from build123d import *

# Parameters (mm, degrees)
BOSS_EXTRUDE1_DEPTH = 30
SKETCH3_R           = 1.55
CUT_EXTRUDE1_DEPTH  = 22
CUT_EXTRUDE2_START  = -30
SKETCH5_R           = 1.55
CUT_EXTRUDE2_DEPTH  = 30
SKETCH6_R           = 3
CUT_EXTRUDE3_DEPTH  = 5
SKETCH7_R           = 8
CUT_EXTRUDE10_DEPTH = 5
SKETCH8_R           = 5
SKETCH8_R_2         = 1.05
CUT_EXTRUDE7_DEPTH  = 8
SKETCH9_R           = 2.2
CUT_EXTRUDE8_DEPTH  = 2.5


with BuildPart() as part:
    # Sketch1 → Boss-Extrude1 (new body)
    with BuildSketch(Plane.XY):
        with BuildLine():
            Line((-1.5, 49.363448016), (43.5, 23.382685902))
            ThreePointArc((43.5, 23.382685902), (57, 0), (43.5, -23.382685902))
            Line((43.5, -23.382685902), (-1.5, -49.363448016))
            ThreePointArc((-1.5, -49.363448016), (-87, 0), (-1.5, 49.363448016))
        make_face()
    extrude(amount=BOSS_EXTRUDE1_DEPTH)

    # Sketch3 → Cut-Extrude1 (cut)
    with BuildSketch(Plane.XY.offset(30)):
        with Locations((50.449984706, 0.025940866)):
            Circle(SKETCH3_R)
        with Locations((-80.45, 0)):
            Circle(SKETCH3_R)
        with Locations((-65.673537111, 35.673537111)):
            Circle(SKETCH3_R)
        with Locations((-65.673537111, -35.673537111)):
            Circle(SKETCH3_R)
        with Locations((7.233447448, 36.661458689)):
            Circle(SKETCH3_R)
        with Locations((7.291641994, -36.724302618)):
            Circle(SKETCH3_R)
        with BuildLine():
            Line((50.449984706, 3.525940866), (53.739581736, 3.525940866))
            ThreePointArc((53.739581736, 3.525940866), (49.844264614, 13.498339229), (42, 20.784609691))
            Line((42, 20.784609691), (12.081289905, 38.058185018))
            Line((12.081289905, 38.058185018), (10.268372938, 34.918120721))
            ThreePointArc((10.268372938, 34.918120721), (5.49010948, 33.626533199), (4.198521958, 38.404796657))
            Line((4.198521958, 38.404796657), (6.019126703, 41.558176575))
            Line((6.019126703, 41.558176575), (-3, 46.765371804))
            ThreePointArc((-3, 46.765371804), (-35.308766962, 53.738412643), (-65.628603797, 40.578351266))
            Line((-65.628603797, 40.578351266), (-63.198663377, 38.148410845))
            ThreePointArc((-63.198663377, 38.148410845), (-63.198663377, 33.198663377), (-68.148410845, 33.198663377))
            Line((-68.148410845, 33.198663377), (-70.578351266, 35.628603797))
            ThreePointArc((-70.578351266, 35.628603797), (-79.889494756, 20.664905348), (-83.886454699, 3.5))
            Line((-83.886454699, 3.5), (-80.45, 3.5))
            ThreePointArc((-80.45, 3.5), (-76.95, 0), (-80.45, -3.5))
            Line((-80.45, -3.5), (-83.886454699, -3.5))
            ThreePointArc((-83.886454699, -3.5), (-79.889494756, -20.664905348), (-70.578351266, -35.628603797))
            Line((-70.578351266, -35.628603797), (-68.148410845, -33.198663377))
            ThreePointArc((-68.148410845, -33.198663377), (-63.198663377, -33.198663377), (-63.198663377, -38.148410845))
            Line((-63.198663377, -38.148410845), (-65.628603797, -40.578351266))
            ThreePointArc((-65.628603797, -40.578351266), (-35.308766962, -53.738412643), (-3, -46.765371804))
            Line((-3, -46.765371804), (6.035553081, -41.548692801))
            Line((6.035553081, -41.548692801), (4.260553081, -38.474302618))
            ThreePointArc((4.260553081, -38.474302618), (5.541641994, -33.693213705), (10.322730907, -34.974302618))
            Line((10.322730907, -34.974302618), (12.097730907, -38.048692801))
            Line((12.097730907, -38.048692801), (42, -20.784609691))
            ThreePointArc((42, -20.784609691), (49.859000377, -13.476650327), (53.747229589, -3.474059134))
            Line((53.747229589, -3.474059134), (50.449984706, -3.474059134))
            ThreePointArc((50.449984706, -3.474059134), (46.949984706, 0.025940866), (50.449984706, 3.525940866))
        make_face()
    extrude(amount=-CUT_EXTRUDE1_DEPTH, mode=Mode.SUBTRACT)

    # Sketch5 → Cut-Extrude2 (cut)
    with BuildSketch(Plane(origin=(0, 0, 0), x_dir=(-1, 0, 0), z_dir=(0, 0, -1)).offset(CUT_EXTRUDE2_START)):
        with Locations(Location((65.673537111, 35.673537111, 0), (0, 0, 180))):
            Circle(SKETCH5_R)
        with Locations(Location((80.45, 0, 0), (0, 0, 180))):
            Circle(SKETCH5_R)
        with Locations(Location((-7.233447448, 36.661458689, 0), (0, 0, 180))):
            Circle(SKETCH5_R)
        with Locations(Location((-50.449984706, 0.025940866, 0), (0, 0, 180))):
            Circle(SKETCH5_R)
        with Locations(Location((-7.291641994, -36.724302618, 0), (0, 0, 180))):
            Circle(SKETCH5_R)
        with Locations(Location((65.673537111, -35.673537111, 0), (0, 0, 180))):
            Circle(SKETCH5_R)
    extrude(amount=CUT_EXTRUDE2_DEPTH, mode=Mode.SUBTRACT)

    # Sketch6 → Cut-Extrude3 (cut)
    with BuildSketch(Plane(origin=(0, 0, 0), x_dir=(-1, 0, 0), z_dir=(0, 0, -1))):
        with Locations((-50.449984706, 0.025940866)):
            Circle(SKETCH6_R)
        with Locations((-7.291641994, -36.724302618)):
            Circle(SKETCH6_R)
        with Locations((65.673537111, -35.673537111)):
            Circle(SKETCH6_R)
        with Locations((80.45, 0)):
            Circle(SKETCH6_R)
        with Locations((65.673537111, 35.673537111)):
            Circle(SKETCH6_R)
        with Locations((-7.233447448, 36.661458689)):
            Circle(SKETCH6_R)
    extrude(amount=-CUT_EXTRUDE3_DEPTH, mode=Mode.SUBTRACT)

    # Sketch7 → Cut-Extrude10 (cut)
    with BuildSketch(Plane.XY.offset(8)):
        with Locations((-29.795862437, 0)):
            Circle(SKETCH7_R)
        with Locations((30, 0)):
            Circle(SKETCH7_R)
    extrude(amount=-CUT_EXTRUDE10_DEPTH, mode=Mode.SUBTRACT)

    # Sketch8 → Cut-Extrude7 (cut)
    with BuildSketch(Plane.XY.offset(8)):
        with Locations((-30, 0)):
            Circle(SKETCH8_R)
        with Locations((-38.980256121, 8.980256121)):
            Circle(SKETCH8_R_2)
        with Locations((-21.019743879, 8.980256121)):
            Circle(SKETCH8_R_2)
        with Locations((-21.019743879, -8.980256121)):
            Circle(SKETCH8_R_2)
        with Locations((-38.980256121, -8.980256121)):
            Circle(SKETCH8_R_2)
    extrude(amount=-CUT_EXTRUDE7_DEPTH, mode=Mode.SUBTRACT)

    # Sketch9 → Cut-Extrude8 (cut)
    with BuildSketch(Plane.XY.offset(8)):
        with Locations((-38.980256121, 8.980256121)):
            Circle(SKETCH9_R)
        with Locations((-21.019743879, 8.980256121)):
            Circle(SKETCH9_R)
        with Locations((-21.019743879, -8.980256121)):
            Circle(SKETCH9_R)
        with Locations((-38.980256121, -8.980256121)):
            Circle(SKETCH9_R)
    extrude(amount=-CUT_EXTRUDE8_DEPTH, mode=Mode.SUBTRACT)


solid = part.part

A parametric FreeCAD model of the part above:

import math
import FreeCAD as App
import Part
import Sketcher

V = App.Vector
Q = App.Units.Quantity

doc = App.newDocument("Part")
params = doc.addObject("Spreadsheet::Sheet", "Params")
for row, (alias, value) in enumerate([
    ("sketch1_radius", "57 mm"),
    ("sketch1_radius2", "27 mm"),
    ("pad1_length", "30 mm"),
    ("sketch2_radius", "24 mm"),
    ("sketch2_radius2", "54 mm"),
    ("sketch2_diameter", "3.1 mm"),
    ("sketch2_radius3", "3.5 mm"),
    ("sketch2_length", "3.55 mm"),
    ("pocket1_length", "22 mm"),
    ("sketch3_diameter", "3.1 mm"),
    ("pocket2_length", "30 mm"),
    ("sketch4_diameter", "6 mm"),
    ("pocket3_length", "5 mm"),
    ("sketch5_diameter", "16 mm"),
    ("pocket4_length", "5 mm"),
    ("sketch6_diameter", "10 mm"),
    ("sketch6_diameter2", "2.1 mm"),
    ("pocket5_length", "8 mm"),
    ("sketch7_diameter", "4.4 mm"),
    ("pocket6_length", "2.5 mm"),
], start=1):
    params.set(f"A{row}", alias)
    params.set(f"B{row}", "=" + value)
    params.setAlias(f"B{row}", alias)

body = doc.addObject("PartDesign::Body", "Body")

sketch1 = doc.addObject("Sketcher::SketchObject", "Sketch")
body.addObject(sketch1)
sketch1.AttachmentSupport = (doc.XY_Plane, [""])
sketch1.MapMode = "FlatFace"
sketch1.addGeometry(Part.LineSegment(V(43.5, 23.382686, 0), V(-1.5, 49.363448, 0)), False)
sketch1.addGeometry(Part.ArcOfCircle(Part.Circle(V(-30, 0, 0), V(0, 0, 1), 57), math.radians(60), math.radians(300)), False)
sketch1.addGeometry(Part.LineSegment(V(-1.5, -49.363448, 0), V(43.5, -23.382686, 0)), False)
sketch1.addGeometry(Part.ArcOfCircle(Part.Circle(V(30, 0, 0), V(0, 0, 1), 27), math.radians(-60), math.radians(60)), False)
sketch1.addConstraint(Sketcher.Constraint("Tangent", 0, 2, 1, 1))
sketch1.addConstraint(Sketcher.Constraint("Tangent", 1, 2, 2, 1))
sketch1.addConstraint(Sketcher.Constraint("Tangent", 2, 2, 3, 1))
sketch1.addConstraint(Sketcher.Constraint("Tangent", 3, 2, 0, 1))
sketch1.addConstraint(Sketcher.Constraint("Symmetric", 1, 3, 3, 3, -1, 1))
sketch1.addConstraint(Sketcher.Constraint("PointOnObject", 1, 3, -1))
sketch1.addConstraint(Sketcher.Constraint("Radius", 1, Q("57 mm")))
sketch1.addConstraint(Sketcher.Constraint("Radius", 3, Q("27 mm")))
sketch1.addConstraint(Sketcher.Constraint("Angle", 0, Q("150 deg")))
sketch1.setExpression("Constraints[6]", "Params.sketch1_radius")
sketch1.setExpression("Constraints[7]", "Params.sketch1_radius2")
pad1 = doc.addObject("PartDesign::Pad", "Pad")
body.addObject(pad1)
pad1.Profile = sketch1
pad1.setExpression("Length", "Params.pad1_length")

sketch2 = doc.addObject("Sketcher::SketchObject", "Sketch001")
body.addObject(sketch2)
sketch2.AttachmentSupport = (doc.XY_Plane, [""])
sketch2.MapMode = "FlatFace"
sketch2.AttachmentOffset = App.Placement(V(0, 0, 30), App.Rotation())
sketch2.addGeometry(Part.Circle(V(50.449985, 0.025941, 0), V(0, 0, 1), 1.55), False)
sketch2.addGeometry(Part.Circle(V(-80.45, 0, 0), V(0, 0, 1), 1.55), False)
sketch2.addGeometry(Part.Circle(V(-65.673537, 35.673537, 0), V(0, 0, 1), 1.55), False)
sketch2.addGeometry(Part.Circle(V(-65.673537, -35.673537, 0), V(0, 0, 1), 1.55), False)
sketch2.addGeometry(Part.Circle(V(7.233447, 36.661459, 0), V(0, 0, 1), 1.55), False)
sketch2.addGeometry(Part.Circle(V(7.291642, -36.724303, 0), V(0, 0, 1), 1.55), False)
sketch2.addGeometry(Part.LineSegment(V(50.449985, 3.525941, 0), V(53.739582, 3.525941, 0)), False)
sketch2.addGeometry(Part.ArcOfCircle(Part.Circle(V(30, 0, 0), V(0, 0, 1), 24), math.radians(8.448142), math.radians(60)), False)
sketch2.addGeometry(Part.LineSegment(V(42, 20.78461, 0), V(12.08129, 38.058185, 0)), False)
sketch2.addGeometry(Part.LineSegment(V(12.08129, 38.058185, 0), V(10.268373, 34.918121, 0)), False)
sketch2.addGeometry(Part.ArcOfCircle(Part.Circle(V(7.233447, 36.661459, 0), V(0, 0, 1), 3.5), math.radians(150.125851), math.radians(330.125851)), False)
sketch2.addGeometry(Part.LineSegment(V(4.198522, 38.404797, 0), V(6.019127, 41.558177, 0)), False)
sketch2.addGeometry(Part.LineSegment(V(6.019127, 41.558177, 0), V(-3, 46.765372, 0)), False)
sketch2.addGeometry(Part.ArcOfCircle(Part.Circle(V(-30, 0, 0), V(0, 0, 1), 54), math.radians(60), math.radians(131.28378)), False)
sketch2.addGeometry(Part.LineSegment(V(-65.628604, 40.578351, 0), V(-63.198663, 38.148411, 0)), False)
sketch2.addGeometry(Part.ArcOfCircle(Part.Circle(V(-65.673537, 35.673537, 0), V(0, 0, 1), 3.5), math.radians(-135), math.radians(45)), False)
sketch2.addGeometry(Part.LineSegment(V(-68.148411, 33.198663, 0), V(-70.578351, 35.628604, 0)), False)
sketch2.addGeometry(Part.ArcOfCircle(Part.Circle(V(-30, 0, 0), V(0, 0, 1), 54), math.radians(138.71622), math.radians(176.28378)), False)
sketch2.addGeometry(Part.LineSegment(V(-83.886455, 3.5, 0), V(-80.45, 3.5, 0)), False)
sketch2.addGeometry(Part.ArcOfCircle(Part.Circle(V(-80.45, 0, 0), V(0, 0, 1), 3.5), math.radians(-90), math.radians(90)), False)
sketch2.addGeometry(Part.LineSegment(V(-80.45, -3.5, 0), V(-83.886455, -3.5, 0)), False)
sketch2.addGeometry(Part.ArcOfCircle(Part.Circle(V(-30, 0, 0), V(0, 0, 1), 54), math.radians(-176.28378), math.radians(-138.71622)), False)
sketch2.addGeometry(Part.LineSegment(V(-70.578351, -35.628604, 0), V(-68.148411, -33.198663, 0)), False)
sketch2.addGeometry(Part.ArcOfCircle(Part.Circle(V(-65.673537, -35.673537, 0), V(0, 0, 1), 3.5), math.radians(-45), math.radians(135)), False)
sketch2.addGeometry(Part.LineSegment(V(-63.198663, -38.148411, 0), V(-65.628604, -40.578351, 0)), False)
sketch2.addGeometry(Part.ArcOfCircle(Part.Circle(V(-30, 0, 0), V(0, 0, 1), 54), math.radians(-131.28378), math.radians(-60)), False)
sketch2.addGeometry(Part.LineSegment(V(-3, -46.765372, 0), V(6.035553, -41.548693, 0)), False)
sketch2.addGeometry(Part.LineSegment(V(6.035553, -41.548693, 0), V(4.260553, -38.474303, 0)), False)
sketch2.addGeometry(Part.ArcOfCircle(Part.Circle(V(7.291642, -36.724303, 0), V(0, 0, 1), 3.5), math.radians(30), math.radians(210)), False)
sketch2.addGeometry(Part.LineSegment(V(10.322731, -34.974303, 0), V(12.097731, -38.048693, 0)), False)
sketch2.addGeometry(Part.LineSegment(V(12.097731, -38.048693, 0), V(42, -20.78461, 0)), False)
sketch2.addGeometry(Part.ArcOfCircle(Part.Circle(V(30, 0, 0), V(0, 0, 1), 24), math.radians(-60), math.radians(-8.322945)), False)
sketch2.addGeometry(Part.LineSegment(V(53.74723, -3.474059, 0), V(50.449985, -3.474059, 0)), False)
sketch2.addGeometry(Part.ArcOfCircle(Part.Circle(V(50.449985, 0.025941, 0), V(0, 0, 1), 3.5), math.radians(90), math.radians(270)), False)
sketch2.addConstraint(Sketcher.Constraint("Coincident", 6, 2, 7, 1))
sketch2.addConstraint(Sketcher.Constraint("Tangent", 7, 2, 8, 1))
sketch2.addConstraint(Sketcher.Constraint("Coincident", 8, 2, 9, 1))
sketch2.addConstraint(Sketcher.Constraint("Coincident", 9, 2, 10, 2))
sketch2.addConstraint(Sketcher.Constraint("Coincident", 10, 1, 11, 1))
sketch2.addConstraint(Sketcher.Constraint("Coincident", 11, 2, 12, 1))
sketch2.addConstraint(Sketcher.Constraint("Tangent", 12, 2, 13, 1))
sketch2.addConstraint(Sketcher.Constraint("Coincident", 13, 2, 14, 1))
sketch2.addConstraint(Sketcher.Constraint("Tangent", 14, 2, 15, 2))
sketch2.addConstraint(Sketcher.Constraint("Tangent", 15, 1, 16, 1))
sketch2.addConstraint(Sketcher.Constraint("Coincident", 16, 2, 17, 1))
sketch2.addConstraint(Sketcher.Constraint("Coincident", 17, 2, 18, 1))
sketch2.addConstraint(Sketcher.Constraint("Tangent", 18, 2, 19, 2))
sketch2.addConstraint(Sketcher.Constraint("Tangent", 19, 1, 20, 1))
sketch2.addConstraint(Sketcher.Constraint("Coincident", 20, 2, 21, 1))
sketch2.addConstraint(Sketcher.Constraint("Coincident", 21, 2, 22, 1))
sketch2.addConstraint(Sketcher.Constraint("Tangent", 22, 2, 23, 2))
sketch2.addConstraint(Sketcher.Constraint("Tangent", 23, 1, 24, 1))
sketch2.addConstraint(Sketcher.Constraint("Coincident", 24, 2, 25, 1))
sketch2.addConstraint(Sketcher.Constraint("Tangent", 25, 2, 26, 1))
sketch2.addConstraint(Sketcher.Constraint("Coincident", 26, 2, 27, 1))
sketch2.addConstraint(Sketcher.Constraint("Tangent", 27, 2, 28, 2))
sketch2.addConstraint(Sketcher.Constraint("Tangent", 28, 1, 29, 1))
sketch2.addConstraint(Sketcher.Constraint("Coincident", 29, 2, 30, 1))
sketch2.addConstraint(Sketcher.Constraint("Tangent", 30, 2, 31, 1))
sketch2.addConstraint(Sketcher.Constraint("Coincident", 31, 2, 32, 1))
sketch2.addConstraint(Sketcher.Constraint("Tangent", 32, 2, 33, 2))
sketch2.addConstraint(Sketcher.Constraint("Tangent", 33, 1, 6, 1))
sketch2.addConstraint(Sketcher.Constraint("Horizontal", 6))
sketch2.addConstraint(Sketcher.Constraint("Horizontal", 18))
sketch2.addConstraint(Sketcher.Constraint("Horizontal", 20))
sketch2.addConstraint(Sketcher.Constraint("Horizontal", 32))
sketch2.addConstraint(Sketcher.Constraint("Coincident", 10, 3, 4, 3))
sketch2.addConstraint(Sketcher.Constraint("Coincident", 15, 3, 2, 3))
sketch2.addConstraint(Sketcher.Constraint("Coincident", 17, 3, 13, 3))
sketch2.addConstraint(Sketcher.Constraint("Coincident", 19, 3, 1, 3))
sketch2.addConstraint(Sketcher.Constraint("Coincident", 21, 3, 13, 3))
sketch2.addConstraint(Sketcher.Constraint("Coincident", 23, 3, 3, 3))
sketch2.addConstraint(Sketcher.Constraint("Coincident", 25, 3, 13, 3))
sketch2.addConstraint(Sketcher.Constraint("Coincident", 28, 3, 5, 3))
sketch2.addConstraint(Sketcher.Constraint("Coincident", 31, 3, 7, 3))
sketch2.addConstraint(Sketcher.Constraint("Coincident", 33, 3, 0, 3))
sketch2.addConstraint(Sketcher.Constraint("Equal", 0, 1))
sketch2.addConstraint(Sketcher.Constraint("Equal", 1, 2))
sketch2.addConstraint(Sketcher.Constraint("Equal", 2, 3))
sketch2.addConstraint(Sketcher.Constraint("Equal", 3, 4))
sketch2.addConstraint(Sketcher.Constraint("Equal", 4, 5))
sketch2.addConstraint(Sketcher.Constraint("Equal", 10, 15))
sketch2.addConstraint(Sketcher.Constraint("Equal", 13, 17))
sketch2.addConstraint(Sketcher.Constraint("Equal", 15, 19))
sketch2.addConstraint(Sketcher.Constraint("Equal", 17, 21))
sketch2.addConstraint(Sketcher.Constraint("Equal", 19, 23))
sketch2.addConstraint(Sketcher.Constraint("Equal", 21, 25))
sketch2.addConstraint(Sketcher.Constraint("Equal", 23, 28))
sketch2.addConstraint(Sketcher.Constraint("Equal", 7, 31))
sketch2.addConstraint(Sketcher.Constraint("Equal", 28, 33))
sketch2.addConstraint(Sketcher.Constraint("Symmetric", 7, 3, 13, 3, -1, 1))
sketch2.addConstraint(Sketcher.Constraint("Symmetric", 2, 3, 3, 3, -1))
sketch2.addConstraint(Sketcher.Constraint("Symmetric", 17, 2, 20, 2, -1))
sketch2.addConstraint(Sketcher.Constraint("Perpendicular", 8, 9))
sketch2.addConstraint(Sketcher.Constraint("Parallel", 9, 11))
sketch2.addConstraint(Sketcher.Constraint("Perpendicular", 11, 12))
sketch2.addConstraint(Sketcher.Constraint("Parallel", 14, 16))
sketch2.addConstraint(Sketcher.Constraint("Perpendicular", 16, 22))
sketch2.addConstraint(Sketcher.Constraint("Parallel", 22, 24))
sketch2.addConstraint(Sketcher.Constraint("Perpendicular", 26, 27))
sketch2.addConstraint(Sketcher.Constraint("Parallel", 27, 29))
sketch2.addConstraint(Sketcher.Constraint("Perpendicular", 29, 30))
sketch2.addConstraint(Sketcher.Constraint("Vertical", 16, 2, 21, 2))
sketch2.addConstraint(Sketcher.Constraint("Vertical", 12, 2, 25, 2))
sketch2.addConstraint(Sketcher.Constraint("Equal", 14, 16))
sketch2.addConstraint(Sketcher.Constraint("Equal", 27, 29))
sketch2.addConstraint(Sketcher.Constraint("Radius", 7, Q("24 mm")))
sketch2.addConstraint(Sketcher.Constraint("Radius", 13, Q("54 mm")))
sketch2.addConstraint(Sketcher.Constraint("Diameter", 0, Q("3.1 mm")))
sketch2.addConstraint(Sketcher.Constraint("Radius", 10, Q("3.5 mm")))
sketch2.addConstraint(Sketcher.Constraint("Angle", 8, Q("150 deg")))
sketch2.addConstraint(Sketcher.Constraint("Distance", 27, Q("3.55 mm")))
sketch2.addConstraint(Sketcher.Constraint("DistanceX", 1, 3, -1, 1, Q("80.45 mm")))
sketch2.addConstraint(Sketcher.Constraint("Distance", 8, Q("34.547151 mm")))
sketch2.addConstraint(Sketcher.Constraint("Distance", 11, Q("3.641209 mm")))
sketch2.addConstraint(Sketcher.Constraint("Distance", 26, Q("10.433358 mm")))
sketch2.addConstraint(Sketcher.Constraint("DistanceX", 6, 1, 6, 2, Q("3.289597 mm")))
sketch2.addConstraint(Sketcher.Constraint("DistanceX", 32, 2, 32, 1, Q("3.297245 mm")))
sketch2.addConstraint(Sketcher.Constraint("DistanceY", -1, 1, 4, 3, Q("36.661459 mm")))
sketch2.addConstraint(Sketcher.Constraint("DistanceY", -1, 1, 9, 2, Q("34.918121 mm")))
sketch2.addConstraint(Sketcher.Constraint("DistanceY", -1, 1, 14, 2, Q("38.148411 mm")))
sketch2.setExpression("Constraints[72]", "Params.sketch2_radius")
sketch2.setExpression("Constraints[73]", "Params.sketch2_radius2")
sketch2.setExpression("Constraints[74]", "Params.sketch2_diameter")
sketch2.setExpression("Constraints[75]", "Params.sketch2_radius3")
sketch2.setExpression("Constraints[77]", "Params.sketch2_length")
pocket1 = doc.addObject("PartDesign::Pocket", "Pocket")
body.addObject(pocket1)
pocket1.Profile = sketch2
pocket1.setExpression("Length", "Params.pocket1_length")

sketch3 = doc.addObject("Sketcher::SketchObject", "Sketch002")
body.addObject(sketch3)
sketch3.AttachmentSupport = (doc.XY_Plane, [""])
sketch3.MapMode = "FlatFace"
sketch3.AttachmentOffset = App.Placement(V(0, 0, 30), App.Rotation())
sketch3.addGeometry(Part.Circle(V(-65.673537, 35.673537, 0), V(0, 0, 1), 1.55), False)
sketch3.addGeometry(Part.Circle(V(-80.45, 0, 0), V(0, 0, 1), 1.55), False)
sketch3.addGeometry(Part.Circle(V(7.233447, 36.661459, 0), V(0, 0, 1), 1.55), False)
sketch3.addGeometry(Part.Circle(V(50.449985, 0.025941, 0), V(0, 0, 1), 1.55), False)
sketch3.addGeometry(Part.Circle(V(7.291642, -36.724303, 0), V(0, 0, 1), 1.55), False)
sketch3.addGeometry(Part.Circle(V(-65.673537, -35.673537, 0), V(0, 0, 1), 1.55), False)
sketch3.addConstraint(Sketcher.Constraint("Equal", 0, 1))
sketch3.addConstraint(Sketcher.Constraint("Equal", 1, 2))
sketch3.addConstraint(Sketcher.Constraint("Equal", 2, 3))
sketch3.addConstraint(Sketcher.Constraint("Equal", 3, 4))
sketch3.addConstraint(Sketcher.Constraint("Equal", 4, 5))
sketch3.addConstraint(Sketcher.Constraint("Symmetric", 0, 3, 5, 3, -1))
sketch3.addConstraint(Sketcher.Constraint("PointOnObject", 1, 3, -1))
sketch3.addConstraint(Sketcher.Constraint("Diameter", 0, Q("3.1 mm")))
sketch3.addConstraint(Sketcher.Constraint("DistanceX", 1, 3, -1, 1, Q("80.45 mm")))
sketch3.addConstraint(Sketcher.Constraint("DistanceY", -1, 1, 2, 3, Q("36.661459 mm")))
sketch3.addConstraint(Sketcher.Constraint("DistanceY", -1, 1, 3, 3, Q("0.025941 mm")))
sketch3.addConstraint(Sketcher.Constraint("DistanceX", -1, 1, 4, 3, Q("7.291642 mm")))
sketch3.addConstraint(Sketcher.Constraint("DistanceY", 0, 3, 2, 3, Q("0.987922 mm")))
sketch3.addConstraint(Sketcher.Constraint("DistanceX", 0, 3, 3, 3, Q("116.123522 mm")))
sketch3.addConstraint(Sketcher.Constraint("DistanceY", 4, 3, 2, 3, Q("73.385761 mm")))
sketch3.addConstraint(Sketcher.Constraint("DistanceX", 0, 3, 4, 3, Q("72.965179 mm")))
sketch3.addConstraint(Sketcher.Constraint("DistanceX", -1, 1, 2, 3, Q("7.233447 mm")))
sketch3.setExpression("Constraints[7]", "Params.sketch3_diameter")
pocket2 = doc.addObject("PartDesign::Pocket", "Pocket001")
body.addObject(pocket2)
pocket2.Profile = sketch3
pocket2.setExpression("Length", "Params.pocket2_length")

sketch4 = doc.addObject("Sketcher::SketchObject", "Sketch003")
body.addObject(sketch4)
sketch4.AttachmentSupport = (doc.XY_Plane, [""])
sketch4.MapMode = "FlatFace"
sketch4.addGeometry(Part.Circle(V(50.449985, 0.025941, 0), V(0, 0, 1), 3), False)
sketch4.addGeometry(Part.Circle(V(7.291642, -36.724303, 0), V(0, 0, 1), 3), False)
sketch4.addGeometry(Part.Circle(V(-65.673537, -35.673537, 0), V(0, 0, 1), 3), False)
sketch4.addGeometry(Part.Circle(V(-80.45, 0, 0), V(0, 0, 1), 3), False)
sketch4.addGeometry(Part.Circle(V(-65.673537, 35.673537, 0), V(0, 0, 1), 3), False)
sketch4.addGeometry(Part.Circle(V(7.233447, 36.661459, 0), V(0, 0, 1), 3), False)
sketch4.addConstraint(Sketcher.Constraint("Equal", 0, 1))
sketch4.addConstraint(Sketcher.Constraint("Equal", 1, 2))
sketch4.addConstraint(Sketcher.Constraint("Equal", 2, 3))
sketch4.addConstraint(Sketcher.Constraint("Equal", 3, 4))
sketch4.addConstraint(Sketcher.Constraint("Equal", 4, 5))
sketch4.addConstraint(Sketcher.Constraint("Symmetric", 2, 3, 4, 3, -1))
sketch4.addConstraint(Sketcher.Constraint("PointOnObject", 3, 3, -1))
sketch4.addConstraint(Sketcher.Constraint("Diameter", 0, Q("6 mm")))
sketch4.addConstraint(Sketcher.Constraint("DistanceX", 3, 3, -1, 1, Q("80.45 mm")))
sketch4.addConstraint(Sketcher.Constraint("DistanceY", -1, 1, 0, 3, Q("0.025941 mm")))
sketch4.addConstraint(Sketcher.Constraint("DistanceX", -1, 1, 1, 3, Q("7.291642 mm")))
sketch4.addConstraint(Sketcher.Constraint("DistanceY", -1, 1, 5, 3, Q("36.661459 mm")))
sketch4.addConstraint(Sketcher.Constraint("DistanceX", 2, 3, 1, 3, Q("72.965179 mm")))
sketch4.addConstraint(Sketcher.Constraint("DistanceX", 2, 3, 0, 3, Q("116.123522 mm")))
sketch4.addConstraint(Sketcher.Constraint("DistanceY", 1, 3, 4, 3, Q("72.39784 mm")))
sketch4.addConstraint(Sketcher.Constraint("DistanceY", 4, 3, 5, 3, Q("0.987922 mm")))
sketch4.addConstraint(Sketcher.Constraint("DistanceX", -1, 1, 5, 3, Q("7.233447 mm")))
sketch4.setExpression("Constraints[7]", "Params.sketch4_diameter")
pocket3 = doc.addObject("PartDesign::Pocket", "Pocket002")
body.addObject(pocket3)
pocket3.Profile = sketch4
pocket3.setExpression("Length", "Params.pocket3_length")
pocket3.Reversed = True

sketch5 = doc.addObject("Sketcher::SketchObject", "Sketch004")
body.addObject(sketch5)
sketch5.AttachmentSupport = (doc.XY_Plane, [""])
sketch5.MapMode = "FlatFace"
sketch5.AttachmentOffset = App.Placement(V(0, 0, 8), App.Rotation())
sketch5.addGeometry(Part.Circle(V(-29.795862, 0, 0), V(0, 0, 1), 8), False)
sketch5.addGeometry(Part.Circle(V(30, 0, 0), V(0, 0, 1), 8), False)
sketch5.addConstraint(Sketcher.Constraint("Equal", 0, 1))
sketch5.addConstraint(Sketcher.Constraint("PointOnObject", 0, 3, -1))
sketch5.addConstraint(Sketcher.Constraint("PointOnObject", 1, 3, -1))
sketch5.addConstraint(Sketcher.Constraint("Diameter", 0, Q("16 mm")))
sketch5.addConstraint(Sketcher.Constraint("DistanceX", -1, 1, 1, 3, Q("30 mm")))
sketch5.addConstraint(Sketcher.Constraint("DistanceX", 0, 3, -1, 1, Q("29.795862 mm")))
sketch5.setExpression("Constraints[3]", "Params.sketch5_diameter")
pocket4 = doc.addObject("PartDesign::Pocket", "Pocket003")
body.addObject(pocket4)
pocket4.Profile = sketch5
pocket4.setExpression("Length", "Params.pocket4_length")

sketch6 = doc.addObject("Sketcher::SketchObject", "Sketch005")
body.addObject(sketch6)
sketch6.AttachmentSupport = (doc.XY_Plane, [""])
sketch6.MapMode = "FlatFace"
sketch6.AttachmentOffset = App.Placement(V(0, 0, 8), App.Rotation())
sketch6.addGeometry(Part.Circle(V(-30, 0, 0), V(0, 0, 1), 5), False)
sketch6.addGeometry(Part.Circle(V(-38.980256, 8.980256, 0), V(0, 0, 1), 1.05), False)
sketch6.addGeometry(Part.Circle(V(-21.019744, 8.980256, 0), V(0, 0, 1), 1.05), False)
sketch6.addGeometry(Part.Circle(V(-21.019744, -8.980256, 0), V(0, 0, 1), 1.05), False)
sketch6.addGeometry(Part.Circle(V(-38.980256, -8.980256, 0), V(0, 0, 1), 1.05), False)
sketch6.addConstraint(Sketcher.Constraint("Equal", 1, 2))
sketch6.addConstraint(Sketcher.Constraint("Equal", 2, 3))
sketch6.addConstraint(Sketcher.Constraint("Equal", 3, 4))
sketch6.addConstraint(Sketcher.Constraint("Symmetric", 2, 3, 3, 3, -1))
sketch6.addConstraint(Sketcher.Constraint("Symmetric", 1, 3, 4, 3, -1))
sketch6.addConstraint(Sketcher.Constraint("PointOnObject", 0, 3, -1))
sketch6.addConstraint(Sketcher.Constraint("Horizontal", 1, 3, 2, 3))
sketch6.addConstraint(Sketcher.Constraint("Diameter", 0, Q("10 mm")))
sketch6.addConstraint(Sketcher.Constraint("Diameter", 1, Q("2.1 mm")))
sketch6.addConstraint(Sketcher.Constraint("DistanceX", 0, 3, -1, 1, Q("30 mm")))
sketch6.addConstraint(Sketcher.Constraint("DistanceX", 1, 3, -1, 1, Q("38.980256 mm")))
sketch6.addConstraint(Sketcher.Constraint("DistanceY", -1, 1, 1, 3, Q("8.980256 mm")))
sketch6.addConstraint(Sketcher.Constraint("DistanceX", 2, 3, -1, 1, Q("21.019744 mm")))
sketch6.setExpression("Constraints[7]", "Params.sketch6_diameter")
sketch6.setExpression("Constraints[8]", "Params.sketch6_diameter2")
pocket5 = doc.addObject("PartDesign::Pocket", "Pocket004")
body.addObject(pocket5)
pocket5.Profile = sketch6
pocket5.setExpression("Length", "Params.pocket5_length")

sketch7 = doc.addObject("Sketcher::SketchObject", "Sketch006")
body.addObject(sketch7)
sketch7.AttachmentSupport = (doc.XY_Plane, [""])
sketch7.MapMode = "FlatFace"
sketch7.AttachmentOffset = App.Placement(V(0, 0, 8), App.Rotation())
sketch7.addGeometry(Part.Circle(V(-38.980256, 8.980256, 0), V(0, 0, 1), 2.2), False)
sketch7.addGeometry(Part.Circle(V(-21.019744, 8.980256, 0), V(0, 0, 1), 2.2), False)
sketch7.addGeometry(Part.Circle(V(-21.019744, -8.980256, 0), V(0, 0, 1), 2.2), False)
sketch7.addGeometry(Part.Circle(V(-38.980256, -8.980256, 0), V(0, 0, 1), 2.2), False)
sketch7.addConstraint(Sketcher.Constraint("Equal", 0, 1))
sketch7.addConstraint(Sketcher.Constraint("Equal", 1, 2))
sketch7.addConstraint(Sketcher.Constraint("Equal", 2, 3))
sketch7.addConstraint(Sketcher.Constraint("Symmetric", 1, 3, 2, 3, -1))
sketch7.addConstraint(Sketcher.Constraint("Symmetric", 0, 3, 3, 3, -1))
sketch7.addConstraint(Sketcher.Constraint("Horizontal", 0, 3, 1, 3))
sketch7.addConstraint(Sketcher.Constraint("Diameter", 0, Q("4.4 mm")))
sketch7.addConstraint(Sketcher.Constraint("DistanceX", 0, 3, -1, 1, Q("38.980256 mm")))
sketch7.addConstraint(Sketcher.Constraint("DistanceY", -1, 1, 0, 3, Q("8.980256 mm")))
sketch7.addConstraint(Sketcher.Constraint("DistanceX", 1, 3, -1, 1, Q("21.019744 mm")))
sketch7.setExpression("Constraints[6]", "Params.sketch7_diameter")
pocket6 = doc.addObject("PartDesign::Pocket", "Pocket005")
body.addObject(pocket6)
pocket6.Profile = sketch7
pocket6.setExpression("Length", "Params.pocket6_length")

doc.recompute()
